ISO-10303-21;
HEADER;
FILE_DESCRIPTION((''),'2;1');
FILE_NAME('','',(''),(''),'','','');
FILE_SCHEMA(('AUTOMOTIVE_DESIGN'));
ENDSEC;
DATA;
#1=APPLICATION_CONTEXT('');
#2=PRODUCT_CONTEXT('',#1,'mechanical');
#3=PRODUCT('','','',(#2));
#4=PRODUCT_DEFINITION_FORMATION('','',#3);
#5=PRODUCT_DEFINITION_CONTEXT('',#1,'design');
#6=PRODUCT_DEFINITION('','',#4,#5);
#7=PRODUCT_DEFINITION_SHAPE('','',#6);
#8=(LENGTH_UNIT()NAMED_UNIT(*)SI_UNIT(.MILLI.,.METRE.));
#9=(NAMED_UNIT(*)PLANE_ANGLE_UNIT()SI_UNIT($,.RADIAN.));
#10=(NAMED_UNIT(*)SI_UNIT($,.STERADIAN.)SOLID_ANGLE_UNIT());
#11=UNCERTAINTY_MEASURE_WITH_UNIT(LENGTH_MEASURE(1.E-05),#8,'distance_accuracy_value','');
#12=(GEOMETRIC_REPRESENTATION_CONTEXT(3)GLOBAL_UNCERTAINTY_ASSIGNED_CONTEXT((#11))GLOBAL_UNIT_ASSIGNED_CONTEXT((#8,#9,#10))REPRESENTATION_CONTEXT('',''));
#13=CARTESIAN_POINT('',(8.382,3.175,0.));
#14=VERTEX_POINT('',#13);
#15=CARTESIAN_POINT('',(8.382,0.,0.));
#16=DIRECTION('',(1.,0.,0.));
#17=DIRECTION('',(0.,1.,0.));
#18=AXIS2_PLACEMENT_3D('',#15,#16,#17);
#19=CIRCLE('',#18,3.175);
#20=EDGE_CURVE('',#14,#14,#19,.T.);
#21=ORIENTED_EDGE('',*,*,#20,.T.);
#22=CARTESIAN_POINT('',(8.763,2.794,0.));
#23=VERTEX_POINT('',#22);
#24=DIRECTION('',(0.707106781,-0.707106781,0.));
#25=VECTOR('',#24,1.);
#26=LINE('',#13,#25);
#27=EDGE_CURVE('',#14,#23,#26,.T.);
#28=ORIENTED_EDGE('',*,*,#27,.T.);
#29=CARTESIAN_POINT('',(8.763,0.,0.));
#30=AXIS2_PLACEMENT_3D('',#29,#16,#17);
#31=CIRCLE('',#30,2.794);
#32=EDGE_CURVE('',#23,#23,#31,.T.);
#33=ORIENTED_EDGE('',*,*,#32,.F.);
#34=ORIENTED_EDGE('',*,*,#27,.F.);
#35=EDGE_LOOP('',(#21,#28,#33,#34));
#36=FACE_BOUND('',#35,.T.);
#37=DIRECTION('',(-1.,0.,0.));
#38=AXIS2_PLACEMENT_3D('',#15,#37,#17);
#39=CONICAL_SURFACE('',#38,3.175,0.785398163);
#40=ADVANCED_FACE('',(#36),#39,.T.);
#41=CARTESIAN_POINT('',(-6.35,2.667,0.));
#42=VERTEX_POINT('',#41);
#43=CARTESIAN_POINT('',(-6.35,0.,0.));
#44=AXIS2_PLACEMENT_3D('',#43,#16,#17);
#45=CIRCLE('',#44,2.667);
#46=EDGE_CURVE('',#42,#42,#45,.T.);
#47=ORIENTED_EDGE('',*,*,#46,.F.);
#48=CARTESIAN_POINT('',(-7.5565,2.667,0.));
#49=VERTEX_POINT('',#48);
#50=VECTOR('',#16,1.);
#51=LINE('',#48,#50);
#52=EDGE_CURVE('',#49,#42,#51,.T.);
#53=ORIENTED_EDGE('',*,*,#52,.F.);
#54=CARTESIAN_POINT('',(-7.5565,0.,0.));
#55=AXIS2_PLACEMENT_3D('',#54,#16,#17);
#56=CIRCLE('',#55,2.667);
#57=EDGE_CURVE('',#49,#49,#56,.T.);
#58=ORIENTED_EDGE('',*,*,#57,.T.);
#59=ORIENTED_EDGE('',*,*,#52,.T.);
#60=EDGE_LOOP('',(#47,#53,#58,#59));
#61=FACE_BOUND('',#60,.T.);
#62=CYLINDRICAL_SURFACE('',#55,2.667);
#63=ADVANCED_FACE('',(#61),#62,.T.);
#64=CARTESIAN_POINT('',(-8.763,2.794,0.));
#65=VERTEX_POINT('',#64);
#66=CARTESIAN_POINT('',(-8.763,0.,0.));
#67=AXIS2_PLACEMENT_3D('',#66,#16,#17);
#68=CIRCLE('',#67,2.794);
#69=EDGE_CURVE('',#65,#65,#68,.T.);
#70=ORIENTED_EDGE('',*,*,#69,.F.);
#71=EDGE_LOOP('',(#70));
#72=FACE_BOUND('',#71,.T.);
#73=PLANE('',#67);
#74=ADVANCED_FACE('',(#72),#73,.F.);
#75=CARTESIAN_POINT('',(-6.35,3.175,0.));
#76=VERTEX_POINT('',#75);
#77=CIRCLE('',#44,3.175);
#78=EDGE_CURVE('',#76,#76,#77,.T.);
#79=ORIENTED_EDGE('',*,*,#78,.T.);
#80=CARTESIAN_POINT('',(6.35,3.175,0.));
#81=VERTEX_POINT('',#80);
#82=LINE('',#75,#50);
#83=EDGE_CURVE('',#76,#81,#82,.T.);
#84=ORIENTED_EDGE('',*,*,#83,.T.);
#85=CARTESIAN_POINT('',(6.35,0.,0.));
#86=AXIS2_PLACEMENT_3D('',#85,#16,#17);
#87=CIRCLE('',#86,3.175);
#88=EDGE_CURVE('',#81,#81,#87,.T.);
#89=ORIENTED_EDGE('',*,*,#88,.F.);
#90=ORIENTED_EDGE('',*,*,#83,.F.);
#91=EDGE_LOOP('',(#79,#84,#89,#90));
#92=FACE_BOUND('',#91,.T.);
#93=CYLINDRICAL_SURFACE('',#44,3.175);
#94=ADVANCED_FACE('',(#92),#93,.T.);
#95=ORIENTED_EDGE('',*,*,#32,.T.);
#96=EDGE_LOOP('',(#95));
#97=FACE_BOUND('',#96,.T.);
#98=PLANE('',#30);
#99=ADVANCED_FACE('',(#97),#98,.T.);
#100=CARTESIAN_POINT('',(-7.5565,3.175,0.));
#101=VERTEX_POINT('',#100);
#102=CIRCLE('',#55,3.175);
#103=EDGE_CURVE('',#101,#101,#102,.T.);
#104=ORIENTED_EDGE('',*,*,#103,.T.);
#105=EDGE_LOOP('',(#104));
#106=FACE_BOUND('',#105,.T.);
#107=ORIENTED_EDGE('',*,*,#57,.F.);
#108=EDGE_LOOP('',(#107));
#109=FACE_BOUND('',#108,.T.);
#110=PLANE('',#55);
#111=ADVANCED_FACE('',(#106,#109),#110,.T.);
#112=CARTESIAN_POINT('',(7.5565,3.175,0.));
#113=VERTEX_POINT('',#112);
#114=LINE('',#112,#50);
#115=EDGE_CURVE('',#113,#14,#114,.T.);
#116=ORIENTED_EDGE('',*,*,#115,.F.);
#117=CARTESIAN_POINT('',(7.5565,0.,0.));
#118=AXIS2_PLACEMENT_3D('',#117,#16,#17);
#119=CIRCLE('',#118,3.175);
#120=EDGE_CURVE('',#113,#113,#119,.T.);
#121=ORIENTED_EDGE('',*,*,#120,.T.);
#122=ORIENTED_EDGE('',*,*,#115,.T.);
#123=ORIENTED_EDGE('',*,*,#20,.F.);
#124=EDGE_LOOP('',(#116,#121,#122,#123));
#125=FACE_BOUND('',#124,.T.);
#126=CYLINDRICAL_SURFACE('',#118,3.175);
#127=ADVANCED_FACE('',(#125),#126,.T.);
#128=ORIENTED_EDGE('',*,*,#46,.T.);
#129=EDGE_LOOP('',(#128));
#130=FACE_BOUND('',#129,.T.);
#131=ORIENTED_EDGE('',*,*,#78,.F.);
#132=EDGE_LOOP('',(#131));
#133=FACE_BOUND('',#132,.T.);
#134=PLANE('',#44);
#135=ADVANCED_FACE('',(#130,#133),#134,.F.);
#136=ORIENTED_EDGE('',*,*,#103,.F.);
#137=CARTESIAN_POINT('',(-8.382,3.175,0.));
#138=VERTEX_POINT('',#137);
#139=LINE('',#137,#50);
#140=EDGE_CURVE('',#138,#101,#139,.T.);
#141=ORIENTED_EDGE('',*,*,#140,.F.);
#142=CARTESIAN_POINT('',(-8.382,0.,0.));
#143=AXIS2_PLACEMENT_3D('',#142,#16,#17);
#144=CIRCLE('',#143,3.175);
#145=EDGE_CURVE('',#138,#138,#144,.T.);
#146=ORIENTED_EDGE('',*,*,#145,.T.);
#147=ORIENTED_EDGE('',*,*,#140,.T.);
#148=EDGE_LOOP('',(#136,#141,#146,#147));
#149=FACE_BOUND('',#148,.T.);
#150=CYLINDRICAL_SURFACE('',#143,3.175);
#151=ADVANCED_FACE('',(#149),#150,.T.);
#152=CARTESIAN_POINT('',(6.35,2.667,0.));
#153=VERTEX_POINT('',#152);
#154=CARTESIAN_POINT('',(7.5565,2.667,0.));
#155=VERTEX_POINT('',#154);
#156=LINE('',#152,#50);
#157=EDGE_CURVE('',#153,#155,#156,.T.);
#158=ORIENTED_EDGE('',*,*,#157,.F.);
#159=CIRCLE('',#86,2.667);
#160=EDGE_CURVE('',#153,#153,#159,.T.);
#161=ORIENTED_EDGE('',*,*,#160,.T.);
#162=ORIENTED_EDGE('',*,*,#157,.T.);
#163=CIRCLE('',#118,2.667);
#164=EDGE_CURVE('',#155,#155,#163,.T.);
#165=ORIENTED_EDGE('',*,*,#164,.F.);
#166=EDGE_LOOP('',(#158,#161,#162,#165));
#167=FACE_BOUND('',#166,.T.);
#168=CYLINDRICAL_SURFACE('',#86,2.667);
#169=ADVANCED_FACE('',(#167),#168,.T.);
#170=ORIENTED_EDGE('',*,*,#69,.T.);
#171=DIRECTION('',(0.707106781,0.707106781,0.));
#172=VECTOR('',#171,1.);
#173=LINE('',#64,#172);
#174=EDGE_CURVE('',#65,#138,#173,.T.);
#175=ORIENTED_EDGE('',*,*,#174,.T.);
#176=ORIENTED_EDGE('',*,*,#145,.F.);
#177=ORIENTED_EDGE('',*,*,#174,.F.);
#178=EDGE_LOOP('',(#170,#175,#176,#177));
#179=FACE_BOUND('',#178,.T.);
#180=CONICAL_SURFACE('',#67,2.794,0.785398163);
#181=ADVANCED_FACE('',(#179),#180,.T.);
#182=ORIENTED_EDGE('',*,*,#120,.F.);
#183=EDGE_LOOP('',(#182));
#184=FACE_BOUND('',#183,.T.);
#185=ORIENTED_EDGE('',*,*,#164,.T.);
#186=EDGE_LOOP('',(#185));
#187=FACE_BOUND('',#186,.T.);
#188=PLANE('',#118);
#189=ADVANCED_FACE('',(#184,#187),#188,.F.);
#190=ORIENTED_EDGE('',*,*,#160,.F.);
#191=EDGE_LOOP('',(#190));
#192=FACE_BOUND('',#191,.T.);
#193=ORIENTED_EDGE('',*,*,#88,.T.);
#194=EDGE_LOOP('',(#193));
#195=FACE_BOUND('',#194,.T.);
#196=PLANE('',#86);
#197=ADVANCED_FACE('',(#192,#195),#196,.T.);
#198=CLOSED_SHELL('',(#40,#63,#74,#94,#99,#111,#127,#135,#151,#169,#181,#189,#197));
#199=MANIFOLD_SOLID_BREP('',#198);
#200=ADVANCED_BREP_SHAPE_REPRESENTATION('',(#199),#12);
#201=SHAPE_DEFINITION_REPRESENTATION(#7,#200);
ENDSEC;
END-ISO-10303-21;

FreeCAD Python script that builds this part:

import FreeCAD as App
import Part
import Sketcher
Q = App.Units.Quantity


def add_polygon(sketch, points):
    """Adds a closed chain of lines whose ends are joined by coincident constraints."""
    first, n = sketch.GeometryCount, len(points)
    for a, b in zip(points, points[1:] + points[:1]):
        sketch.addGeometry(Part.LineSegment(App.Vector(*a, 0), App.Vector(*b, 0)), False)
    for i in range(n):
        sketch.addConstraint(Sketcher.Constraint("Coincident", first + i, 2, first + (i + 1) % n, 1))

doc = App.newDocument("Part")
body = doc.addObject("PartDesign::Body", "Body")

# Sketch on XY plane
sketch1 = body.newObject("Sketcher::SketchObject", "Sketch")
sketch1.AttachmentSupport = (doc.getObject("XY_Plane"), [""])
sketch1.MapMode = "FlatFace"
add_polygon(sketch1, [(-8.8, 0), (8.8, 0), (8.8, 2.8), (8.4, 3.2), (7.6, 3.2), (7.6, 2.7), (6.3, 2.7), (6.3, 3.2), (-6.3, 3.2), (-6.3, 2.7), (-7.6, 2.7), (-7.6, 3.2), (-8.4, 3.2), (-8.8, 2.8)])  # lines 0-13
sketch1.addConstraint(Sketcher.Constraint("Horizontal", 0))
sketch1.addConstraint(Sketcher.Constraint("Vertical", 1))
sketch1.addConstraint(Sketcher.Constraint("Horizontal", 3))
sketch1.addConstraint(Sketcher.Constraint("Vertical", 4))
sketch1.addConstraint(Sketcher.Constraint("Horizontal", 5))
sketch1.addConstraint(Sketcher.Constraint("Vertical", 6))
sketch1.addConstraint(Sketcher.Constraint("Horizontal", 7))
sketch1.addConstraint(Sketcher.Constraint("Vertical", 8))
sketch1.addConstraint(Sketcher.Constraint("Horizontal", 9))
sketch1.addConstraint(Sketcher.Constraint("Vertical", 10))
sketch1.addConstraint(Sketcher.Constraint("Horizontal", 11))
sketch1.addConstraint(Sketcher.Constraint("Vertical", 13))
sketch1.addConstraint(Sketcher.Constraint("Symmetric", 0, 2, 13, 2, -1, 1))
sketch1.addConstraint(Sketcher.Constraint("Symmetric", 5, 2, 8, 2, -2))
sketch1.addConstraint(Sketcher.Constraint("Symmetric", 3, 2, 10, 2, -2))
sketch1.addConstraint(Sketcher.Constraint("Perpendicular", 2, 12))
sketch1.addConstraint(Sketcher.Constraint("Horizontal", 3, 2, 6, 2))
sketch1.addConstraint(Sketcher.Constraint("Horizontal", 1, 2, 12, 2))
sketch1.addConstraint(Sketcher.Constraint("Equal", 3, 11))
sketch1.addConstraint(Sketcher.Constraint("DistanceX", 7, 2, 7, 1, Q("0.5 in")))
sketch1.addConstraint(Sketcher.Constraint("DistanceX", 0, 1, 0, 2, Q("0.69 in")))
sketch1.addConstraint(Sketcher.Constraint("DistanceY", 1, 1, 1, 2, Q("0.11 in")))
sketch1.addConstraint(Sketcher.Constraint("DistanceY", 4, 2, 4, 1, Q("0.02 in")))
sketch1.addConstraint(Sketcher.Constraint("DistanceX", -1, 1, 2, 2, Q("0.33 in")))
sketch1.addConstraint(Sketcher.Constraint("DistanceX", 3, 2, 3, 1, Q("0.0325 in")))
revolution = body.newObject("PartDesign::Revolution", "Revolution")
revolution.Profile = sketch1
revolution.ReferenceAxis = (sketch1, ["H_Axis"])
revolution.Angle = 360

doc.recompute()
